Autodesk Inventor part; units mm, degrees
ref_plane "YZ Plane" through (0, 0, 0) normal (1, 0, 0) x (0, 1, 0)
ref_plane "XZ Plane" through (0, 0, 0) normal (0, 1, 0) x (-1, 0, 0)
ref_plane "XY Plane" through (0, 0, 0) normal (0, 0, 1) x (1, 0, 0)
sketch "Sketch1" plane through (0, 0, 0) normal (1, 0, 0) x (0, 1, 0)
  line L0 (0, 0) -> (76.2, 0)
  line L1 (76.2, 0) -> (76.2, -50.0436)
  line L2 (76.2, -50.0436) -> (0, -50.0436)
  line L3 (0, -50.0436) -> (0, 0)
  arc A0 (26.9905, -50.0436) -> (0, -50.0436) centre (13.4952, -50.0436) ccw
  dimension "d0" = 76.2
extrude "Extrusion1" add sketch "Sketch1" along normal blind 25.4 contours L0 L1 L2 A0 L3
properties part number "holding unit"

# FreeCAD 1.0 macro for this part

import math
import FreeCAD as App
import Part
import Sketcher

V = App.Vector
Q = App.Units.Quantity

doc = App.newDocument("Part")
body = doc.addObject("PartDesign::Body", "Body")

sketch1 = doc.addObject("Sketcher::SketchObject", "Sketch")
body.addObject(sketch1)
sketch1.AttachmentSupport = (doc.YZ_Plane, [""])
sketch1.MapMode = "FlatFace"
sketch1.addGeometry([
    Part.LineSegment(V(76, 0, 0), V(0, 0, 0)),
    Part.LineSegment(V(0, 0, 0), V(0, -50, 0)),
    Part.ArcOfCircle(Part.Circle(V(13, -50, 0), V(0, 0, 1), 13), math.radians(0), math.radians(180)),
    Part.LineSegment(V(27, -50, 0), V(76, -50, 0)),
    Part.LineSegment(V(76, -50, 0), V(76, 0, 0)),
], False)
sketch1.addConstraint([
    Sketcher.Constraint("Coincident", 0, 2, 1, 1),
    Sketcher.Constraint("Tangent", 1, 2, 2, 2),
    Sketcher.Constraint("Coincident", 2, 1, 3, 1),
    Sketcher.Constraint("Coincident", 3, 2, 4, 1),
    Sketcher.Constraint("Coincident", 4, 2, 0, 1),
    Sketcher.Constraint("Horizontal", 0),
    Sketcher.Constraint("Vertical", 1),
    Sketcher.Constraint("Horizontal", 3),
    Sketcher.Constraint("Vertical", 4),
    Sketcher.Constraint("Coincident", 0, 2, -1, 1),
    Sketcher.Constraint("Horizontal", 1, 2, 2, 1),
    Sketcher.Constraint("DistanceX", 0, 2, 0, 1, Q("3 in")),
    Sketcher.Constraint("Radius", 2, Q("0.5313 in")),
    Sketcher.Constraint("DistanceY", 1, 2, 1, 1, 50.0436),
])
pad1 = doc.addObject("PartDesign::Pad", "Pad")
body.addObject(pad1)
pad1.Profile = sketch1
pad1.Length = Q("1 in")

doc.recompute()
